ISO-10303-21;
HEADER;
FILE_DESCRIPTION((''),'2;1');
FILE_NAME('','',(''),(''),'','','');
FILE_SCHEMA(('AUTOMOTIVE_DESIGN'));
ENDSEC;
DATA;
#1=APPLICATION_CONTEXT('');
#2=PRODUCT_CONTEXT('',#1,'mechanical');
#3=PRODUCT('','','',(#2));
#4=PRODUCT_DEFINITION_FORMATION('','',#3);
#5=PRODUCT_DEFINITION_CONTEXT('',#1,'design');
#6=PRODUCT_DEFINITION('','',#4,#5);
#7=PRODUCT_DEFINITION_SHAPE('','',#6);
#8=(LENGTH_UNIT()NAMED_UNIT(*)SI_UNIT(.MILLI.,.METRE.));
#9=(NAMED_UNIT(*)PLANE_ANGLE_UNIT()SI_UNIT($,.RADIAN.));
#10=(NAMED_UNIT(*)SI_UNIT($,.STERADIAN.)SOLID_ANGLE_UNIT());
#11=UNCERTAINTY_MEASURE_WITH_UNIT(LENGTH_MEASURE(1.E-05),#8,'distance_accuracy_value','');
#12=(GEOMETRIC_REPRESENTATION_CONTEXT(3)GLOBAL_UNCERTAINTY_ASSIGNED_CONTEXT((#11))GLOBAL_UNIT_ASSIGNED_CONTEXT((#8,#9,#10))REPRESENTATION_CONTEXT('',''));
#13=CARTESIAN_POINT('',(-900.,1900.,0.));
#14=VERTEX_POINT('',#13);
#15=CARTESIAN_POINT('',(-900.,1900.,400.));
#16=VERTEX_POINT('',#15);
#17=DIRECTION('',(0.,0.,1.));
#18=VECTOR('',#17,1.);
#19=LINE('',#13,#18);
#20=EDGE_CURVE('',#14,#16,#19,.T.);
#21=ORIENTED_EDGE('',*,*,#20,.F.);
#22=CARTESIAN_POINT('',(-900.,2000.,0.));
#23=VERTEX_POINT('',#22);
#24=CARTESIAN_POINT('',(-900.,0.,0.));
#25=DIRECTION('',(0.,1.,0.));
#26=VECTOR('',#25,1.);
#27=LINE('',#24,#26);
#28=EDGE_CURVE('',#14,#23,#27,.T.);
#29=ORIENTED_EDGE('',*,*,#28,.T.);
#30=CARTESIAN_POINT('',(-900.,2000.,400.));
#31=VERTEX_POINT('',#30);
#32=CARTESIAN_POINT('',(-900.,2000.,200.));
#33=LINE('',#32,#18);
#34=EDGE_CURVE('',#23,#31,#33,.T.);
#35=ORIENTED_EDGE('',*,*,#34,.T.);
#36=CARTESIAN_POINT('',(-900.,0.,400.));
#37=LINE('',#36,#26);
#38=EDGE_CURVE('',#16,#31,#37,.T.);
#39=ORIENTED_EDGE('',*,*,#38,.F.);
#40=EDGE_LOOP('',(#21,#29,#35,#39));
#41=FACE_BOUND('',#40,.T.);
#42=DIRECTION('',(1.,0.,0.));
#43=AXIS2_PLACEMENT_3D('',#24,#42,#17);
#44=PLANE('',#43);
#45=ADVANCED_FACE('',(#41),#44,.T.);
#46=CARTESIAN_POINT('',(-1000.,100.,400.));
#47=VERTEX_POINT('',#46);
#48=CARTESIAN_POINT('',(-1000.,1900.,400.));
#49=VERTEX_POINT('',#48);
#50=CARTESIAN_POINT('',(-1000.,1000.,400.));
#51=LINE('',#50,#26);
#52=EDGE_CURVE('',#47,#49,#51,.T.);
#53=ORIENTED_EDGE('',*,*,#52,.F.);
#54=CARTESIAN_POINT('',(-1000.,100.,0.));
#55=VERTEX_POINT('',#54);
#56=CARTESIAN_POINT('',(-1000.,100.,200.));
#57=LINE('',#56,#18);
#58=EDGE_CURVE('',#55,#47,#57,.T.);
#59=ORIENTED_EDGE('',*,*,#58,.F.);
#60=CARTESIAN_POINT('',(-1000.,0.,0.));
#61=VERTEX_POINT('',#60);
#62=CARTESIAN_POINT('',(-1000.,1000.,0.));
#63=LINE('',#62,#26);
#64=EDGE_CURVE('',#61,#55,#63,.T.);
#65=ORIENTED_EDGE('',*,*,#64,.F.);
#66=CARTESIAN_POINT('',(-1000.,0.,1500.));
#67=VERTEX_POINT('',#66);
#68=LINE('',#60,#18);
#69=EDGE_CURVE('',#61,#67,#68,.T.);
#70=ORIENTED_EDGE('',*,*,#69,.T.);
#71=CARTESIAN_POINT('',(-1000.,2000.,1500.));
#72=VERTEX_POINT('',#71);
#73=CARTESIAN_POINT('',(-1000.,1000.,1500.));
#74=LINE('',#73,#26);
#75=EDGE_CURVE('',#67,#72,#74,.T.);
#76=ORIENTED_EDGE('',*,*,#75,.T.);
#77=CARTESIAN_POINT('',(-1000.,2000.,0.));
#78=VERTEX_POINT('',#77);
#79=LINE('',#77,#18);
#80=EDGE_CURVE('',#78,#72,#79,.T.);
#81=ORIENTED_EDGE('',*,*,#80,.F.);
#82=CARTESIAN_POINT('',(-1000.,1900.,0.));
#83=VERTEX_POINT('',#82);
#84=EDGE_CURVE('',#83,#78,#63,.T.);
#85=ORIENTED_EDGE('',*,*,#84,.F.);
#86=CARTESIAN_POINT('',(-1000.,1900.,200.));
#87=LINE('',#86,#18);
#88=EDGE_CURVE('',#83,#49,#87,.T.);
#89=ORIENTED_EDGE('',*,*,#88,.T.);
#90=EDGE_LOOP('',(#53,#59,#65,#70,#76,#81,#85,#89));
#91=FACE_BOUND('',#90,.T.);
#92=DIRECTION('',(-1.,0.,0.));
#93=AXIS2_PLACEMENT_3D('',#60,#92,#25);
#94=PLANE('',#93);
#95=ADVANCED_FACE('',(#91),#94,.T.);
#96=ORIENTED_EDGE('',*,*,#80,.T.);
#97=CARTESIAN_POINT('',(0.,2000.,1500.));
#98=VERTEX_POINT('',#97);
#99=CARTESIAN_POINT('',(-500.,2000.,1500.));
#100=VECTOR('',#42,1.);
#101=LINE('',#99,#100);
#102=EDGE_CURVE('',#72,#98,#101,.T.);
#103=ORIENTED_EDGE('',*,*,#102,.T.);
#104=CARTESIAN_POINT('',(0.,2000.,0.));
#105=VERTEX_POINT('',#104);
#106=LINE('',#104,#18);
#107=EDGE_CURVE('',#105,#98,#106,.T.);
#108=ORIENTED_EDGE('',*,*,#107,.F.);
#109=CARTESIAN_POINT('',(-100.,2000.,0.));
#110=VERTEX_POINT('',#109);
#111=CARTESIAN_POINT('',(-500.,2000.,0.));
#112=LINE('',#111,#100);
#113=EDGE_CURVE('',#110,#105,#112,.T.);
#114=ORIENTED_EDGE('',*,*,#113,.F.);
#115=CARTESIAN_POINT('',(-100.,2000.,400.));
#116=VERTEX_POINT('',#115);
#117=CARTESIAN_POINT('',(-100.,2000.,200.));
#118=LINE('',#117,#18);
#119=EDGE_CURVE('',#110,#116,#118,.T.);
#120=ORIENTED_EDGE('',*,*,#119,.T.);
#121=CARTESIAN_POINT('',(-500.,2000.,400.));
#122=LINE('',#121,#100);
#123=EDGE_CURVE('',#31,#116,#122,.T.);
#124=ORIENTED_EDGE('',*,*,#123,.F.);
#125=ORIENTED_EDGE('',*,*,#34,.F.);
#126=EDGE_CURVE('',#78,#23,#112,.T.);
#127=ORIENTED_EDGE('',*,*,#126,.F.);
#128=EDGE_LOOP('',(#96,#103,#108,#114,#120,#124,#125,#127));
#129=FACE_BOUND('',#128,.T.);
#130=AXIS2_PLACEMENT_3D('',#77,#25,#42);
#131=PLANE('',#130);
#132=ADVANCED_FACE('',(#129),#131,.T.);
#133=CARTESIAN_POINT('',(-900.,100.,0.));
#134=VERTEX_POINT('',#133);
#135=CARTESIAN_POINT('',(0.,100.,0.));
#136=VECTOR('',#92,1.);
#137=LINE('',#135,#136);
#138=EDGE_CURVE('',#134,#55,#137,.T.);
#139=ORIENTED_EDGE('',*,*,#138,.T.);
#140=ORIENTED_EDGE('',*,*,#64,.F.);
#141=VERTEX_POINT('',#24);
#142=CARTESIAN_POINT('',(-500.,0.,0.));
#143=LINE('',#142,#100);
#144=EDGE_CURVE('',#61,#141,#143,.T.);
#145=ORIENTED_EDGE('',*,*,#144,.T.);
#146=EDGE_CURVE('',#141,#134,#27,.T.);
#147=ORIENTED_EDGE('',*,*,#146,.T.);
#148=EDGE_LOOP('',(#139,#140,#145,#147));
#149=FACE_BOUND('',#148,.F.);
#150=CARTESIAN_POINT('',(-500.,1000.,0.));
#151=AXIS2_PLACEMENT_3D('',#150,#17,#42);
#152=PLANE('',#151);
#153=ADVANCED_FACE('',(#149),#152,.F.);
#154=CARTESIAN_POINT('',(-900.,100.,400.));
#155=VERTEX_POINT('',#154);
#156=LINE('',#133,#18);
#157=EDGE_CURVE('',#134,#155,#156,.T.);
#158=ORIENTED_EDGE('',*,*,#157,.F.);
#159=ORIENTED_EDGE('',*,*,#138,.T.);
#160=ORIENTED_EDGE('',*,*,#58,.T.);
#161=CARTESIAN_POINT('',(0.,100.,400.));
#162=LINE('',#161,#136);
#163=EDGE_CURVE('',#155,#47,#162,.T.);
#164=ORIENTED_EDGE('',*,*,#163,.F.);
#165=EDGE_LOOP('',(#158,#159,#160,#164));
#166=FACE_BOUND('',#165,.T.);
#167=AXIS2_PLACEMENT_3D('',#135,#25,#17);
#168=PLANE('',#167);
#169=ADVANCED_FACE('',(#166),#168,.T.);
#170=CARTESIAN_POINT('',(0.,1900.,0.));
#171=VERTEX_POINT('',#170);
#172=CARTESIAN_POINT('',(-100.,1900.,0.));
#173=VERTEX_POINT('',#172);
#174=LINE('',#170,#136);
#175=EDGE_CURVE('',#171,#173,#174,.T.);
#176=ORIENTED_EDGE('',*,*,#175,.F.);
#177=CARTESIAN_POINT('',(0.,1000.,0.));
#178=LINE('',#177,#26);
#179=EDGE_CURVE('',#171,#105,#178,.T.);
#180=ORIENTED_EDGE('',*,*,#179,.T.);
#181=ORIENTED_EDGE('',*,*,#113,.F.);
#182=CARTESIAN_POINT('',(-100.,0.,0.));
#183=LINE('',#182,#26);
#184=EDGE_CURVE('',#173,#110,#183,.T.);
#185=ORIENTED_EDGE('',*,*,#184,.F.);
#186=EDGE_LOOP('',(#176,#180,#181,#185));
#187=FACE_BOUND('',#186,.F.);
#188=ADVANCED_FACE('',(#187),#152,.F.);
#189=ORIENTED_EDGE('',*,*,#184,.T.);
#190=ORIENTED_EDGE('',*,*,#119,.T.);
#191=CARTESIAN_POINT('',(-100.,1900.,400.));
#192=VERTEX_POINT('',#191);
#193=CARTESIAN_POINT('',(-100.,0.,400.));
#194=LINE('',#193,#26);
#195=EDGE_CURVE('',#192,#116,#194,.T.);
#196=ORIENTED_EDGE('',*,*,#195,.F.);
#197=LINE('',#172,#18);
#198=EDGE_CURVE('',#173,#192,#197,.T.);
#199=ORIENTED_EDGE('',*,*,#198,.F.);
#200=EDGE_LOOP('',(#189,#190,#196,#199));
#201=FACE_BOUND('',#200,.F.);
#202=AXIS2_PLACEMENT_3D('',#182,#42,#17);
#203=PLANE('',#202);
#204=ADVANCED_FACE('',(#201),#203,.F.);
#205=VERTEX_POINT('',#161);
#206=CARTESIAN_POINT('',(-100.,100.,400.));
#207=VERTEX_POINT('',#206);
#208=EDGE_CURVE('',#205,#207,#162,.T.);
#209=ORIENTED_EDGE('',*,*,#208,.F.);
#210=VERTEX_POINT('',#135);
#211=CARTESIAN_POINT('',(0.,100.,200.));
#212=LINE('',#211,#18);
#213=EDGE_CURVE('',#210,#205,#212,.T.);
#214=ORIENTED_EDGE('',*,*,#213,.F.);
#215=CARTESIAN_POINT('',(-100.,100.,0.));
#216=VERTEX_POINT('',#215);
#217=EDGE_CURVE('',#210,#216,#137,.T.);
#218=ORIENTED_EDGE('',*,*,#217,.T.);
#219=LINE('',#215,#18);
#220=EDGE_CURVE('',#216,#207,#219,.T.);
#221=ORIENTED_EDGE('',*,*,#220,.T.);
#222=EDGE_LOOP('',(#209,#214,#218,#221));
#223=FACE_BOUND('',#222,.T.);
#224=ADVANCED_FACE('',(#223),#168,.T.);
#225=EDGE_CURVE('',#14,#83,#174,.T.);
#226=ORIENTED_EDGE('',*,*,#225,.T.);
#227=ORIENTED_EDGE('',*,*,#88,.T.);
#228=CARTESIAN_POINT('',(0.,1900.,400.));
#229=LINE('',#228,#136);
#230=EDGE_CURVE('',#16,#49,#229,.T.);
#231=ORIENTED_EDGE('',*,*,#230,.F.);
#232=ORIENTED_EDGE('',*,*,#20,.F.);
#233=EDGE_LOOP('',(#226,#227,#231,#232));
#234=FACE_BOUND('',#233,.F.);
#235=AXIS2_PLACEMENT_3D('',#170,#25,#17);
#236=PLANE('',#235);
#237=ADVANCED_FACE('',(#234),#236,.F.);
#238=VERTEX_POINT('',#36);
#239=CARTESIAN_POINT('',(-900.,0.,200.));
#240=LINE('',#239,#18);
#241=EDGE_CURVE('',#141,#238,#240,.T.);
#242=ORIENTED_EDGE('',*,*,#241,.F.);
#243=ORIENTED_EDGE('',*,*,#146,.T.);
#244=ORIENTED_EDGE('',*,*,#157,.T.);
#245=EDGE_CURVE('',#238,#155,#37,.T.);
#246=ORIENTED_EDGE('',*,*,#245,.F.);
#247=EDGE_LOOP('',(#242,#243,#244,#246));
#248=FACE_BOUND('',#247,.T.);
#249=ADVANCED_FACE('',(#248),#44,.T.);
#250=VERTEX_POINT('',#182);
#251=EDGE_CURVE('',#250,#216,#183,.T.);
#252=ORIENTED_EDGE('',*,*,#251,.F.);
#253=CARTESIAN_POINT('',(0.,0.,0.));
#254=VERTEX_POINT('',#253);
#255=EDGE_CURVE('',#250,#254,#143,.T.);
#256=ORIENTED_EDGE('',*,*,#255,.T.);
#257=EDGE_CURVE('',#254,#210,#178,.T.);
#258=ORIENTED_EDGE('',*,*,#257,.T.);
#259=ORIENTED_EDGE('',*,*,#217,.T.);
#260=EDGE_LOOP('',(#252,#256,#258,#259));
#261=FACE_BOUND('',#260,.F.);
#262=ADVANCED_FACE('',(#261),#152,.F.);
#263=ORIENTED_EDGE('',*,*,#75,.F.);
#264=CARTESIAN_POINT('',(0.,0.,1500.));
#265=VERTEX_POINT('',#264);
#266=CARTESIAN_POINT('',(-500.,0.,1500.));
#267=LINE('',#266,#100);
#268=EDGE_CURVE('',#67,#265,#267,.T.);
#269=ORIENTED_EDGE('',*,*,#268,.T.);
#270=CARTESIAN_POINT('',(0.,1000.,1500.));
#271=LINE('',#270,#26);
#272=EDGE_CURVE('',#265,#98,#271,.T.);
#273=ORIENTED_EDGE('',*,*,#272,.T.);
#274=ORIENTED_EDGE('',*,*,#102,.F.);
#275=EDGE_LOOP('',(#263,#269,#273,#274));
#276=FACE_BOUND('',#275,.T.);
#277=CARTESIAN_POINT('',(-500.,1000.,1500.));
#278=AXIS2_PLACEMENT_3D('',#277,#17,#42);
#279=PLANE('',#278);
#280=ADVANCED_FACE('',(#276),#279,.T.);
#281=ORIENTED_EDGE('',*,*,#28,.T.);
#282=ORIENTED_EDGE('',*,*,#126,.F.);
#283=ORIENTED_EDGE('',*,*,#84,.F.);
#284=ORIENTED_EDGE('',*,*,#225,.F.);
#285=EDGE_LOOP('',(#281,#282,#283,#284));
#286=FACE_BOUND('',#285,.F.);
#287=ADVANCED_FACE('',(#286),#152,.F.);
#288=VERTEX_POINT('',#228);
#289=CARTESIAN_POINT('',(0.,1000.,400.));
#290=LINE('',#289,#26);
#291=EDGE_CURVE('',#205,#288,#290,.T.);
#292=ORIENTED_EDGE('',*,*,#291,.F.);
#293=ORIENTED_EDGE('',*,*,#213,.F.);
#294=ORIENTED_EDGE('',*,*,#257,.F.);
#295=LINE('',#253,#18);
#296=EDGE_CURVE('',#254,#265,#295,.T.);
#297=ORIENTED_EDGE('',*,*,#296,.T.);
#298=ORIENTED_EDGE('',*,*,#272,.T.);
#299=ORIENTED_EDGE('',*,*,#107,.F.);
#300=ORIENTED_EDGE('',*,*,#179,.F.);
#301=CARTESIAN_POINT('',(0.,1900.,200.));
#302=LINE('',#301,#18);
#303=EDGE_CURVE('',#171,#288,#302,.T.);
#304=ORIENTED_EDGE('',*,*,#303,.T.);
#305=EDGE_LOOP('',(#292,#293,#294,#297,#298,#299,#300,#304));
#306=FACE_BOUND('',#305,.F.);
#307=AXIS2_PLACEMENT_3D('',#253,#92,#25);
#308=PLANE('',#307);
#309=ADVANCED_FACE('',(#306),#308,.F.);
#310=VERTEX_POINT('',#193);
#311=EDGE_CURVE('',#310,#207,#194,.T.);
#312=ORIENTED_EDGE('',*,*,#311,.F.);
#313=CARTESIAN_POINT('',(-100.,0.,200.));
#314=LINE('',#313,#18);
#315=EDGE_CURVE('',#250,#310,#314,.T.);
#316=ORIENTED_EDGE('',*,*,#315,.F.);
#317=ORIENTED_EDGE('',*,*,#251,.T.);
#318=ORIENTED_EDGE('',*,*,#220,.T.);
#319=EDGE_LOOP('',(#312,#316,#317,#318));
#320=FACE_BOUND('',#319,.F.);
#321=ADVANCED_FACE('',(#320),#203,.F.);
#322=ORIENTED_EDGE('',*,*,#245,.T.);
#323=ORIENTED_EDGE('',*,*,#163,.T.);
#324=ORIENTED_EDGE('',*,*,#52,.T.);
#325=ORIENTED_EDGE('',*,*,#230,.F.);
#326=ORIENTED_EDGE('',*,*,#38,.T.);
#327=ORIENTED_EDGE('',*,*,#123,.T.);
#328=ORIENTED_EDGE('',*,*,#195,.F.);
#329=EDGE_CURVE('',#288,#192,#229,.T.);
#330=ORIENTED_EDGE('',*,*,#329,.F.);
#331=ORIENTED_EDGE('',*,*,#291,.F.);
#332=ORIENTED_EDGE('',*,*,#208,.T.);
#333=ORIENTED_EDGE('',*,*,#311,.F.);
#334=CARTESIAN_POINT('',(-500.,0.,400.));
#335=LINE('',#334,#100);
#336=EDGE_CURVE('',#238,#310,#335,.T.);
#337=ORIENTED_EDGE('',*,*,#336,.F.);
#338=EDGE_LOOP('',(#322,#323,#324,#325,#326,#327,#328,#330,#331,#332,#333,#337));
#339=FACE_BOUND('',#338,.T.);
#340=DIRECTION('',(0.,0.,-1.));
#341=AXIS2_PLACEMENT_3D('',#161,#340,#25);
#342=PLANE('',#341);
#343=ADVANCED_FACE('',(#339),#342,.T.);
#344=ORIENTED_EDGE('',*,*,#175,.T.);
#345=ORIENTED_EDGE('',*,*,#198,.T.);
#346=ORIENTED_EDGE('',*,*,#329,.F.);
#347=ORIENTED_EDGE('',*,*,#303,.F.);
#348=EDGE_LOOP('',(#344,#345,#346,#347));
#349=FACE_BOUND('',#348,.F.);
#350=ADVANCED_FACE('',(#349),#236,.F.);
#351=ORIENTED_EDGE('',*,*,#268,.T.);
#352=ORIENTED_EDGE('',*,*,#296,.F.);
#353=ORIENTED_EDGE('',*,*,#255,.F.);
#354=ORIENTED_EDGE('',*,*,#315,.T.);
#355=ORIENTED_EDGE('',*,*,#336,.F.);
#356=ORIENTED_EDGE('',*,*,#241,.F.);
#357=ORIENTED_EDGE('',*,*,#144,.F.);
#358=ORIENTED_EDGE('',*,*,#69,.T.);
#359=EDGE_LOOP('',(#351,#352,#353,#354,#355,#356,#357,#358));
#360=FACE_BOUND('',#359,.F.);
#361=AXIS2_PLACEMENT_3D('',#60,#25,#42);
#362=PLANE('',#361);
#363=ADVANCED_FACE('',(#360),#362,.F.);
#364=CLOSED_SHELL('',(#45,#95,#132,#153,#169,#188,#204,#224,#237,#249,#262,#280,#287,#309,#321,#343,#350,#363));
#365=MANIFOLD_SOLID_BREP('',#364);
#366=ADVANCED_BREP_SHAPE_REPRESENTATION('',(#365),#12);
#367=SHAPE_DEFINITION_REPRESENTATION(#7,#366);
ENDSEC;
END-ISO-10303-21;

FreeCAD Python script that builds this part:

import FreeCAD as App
import Part
import Sketcher

V = App.Vector


def add_polygon(sketch, points):
    """Adds a closed chain of lines whose ends are joined by coincident constraints."""
    first, n = sketch.GeometryCount, len(points)
    for a, b in zip(points, points[1:] + points[:1]):
        sketch.addGeometry(Part.LineSegment(App.Vector(*a, 0), App.Vector(*b, 0)), False)
    for i in range(n):
        sketch.addConstraint(Sketcher.Constraint("Coincident", first + i, 2, first + (i + 1) % n, 1))

doc = App.newDocument("Part")
body = doc.addObject("PartDesign::Body", "Body")

sketch1 = body.newObject("Sketcher::SketchObject", "Sketch")
sketch1.AttachmentSupport = (doc.getObject("XY_Plane"), [""])
sketch1.MapMode = "FlatFace"
add_polygon(sketch1, [(-1000, 2000), (-1000, 0), (0, 0), (0, 2000)])
sketch1.addConstraint([
    Sketcher.Constraint("Vertical", 0),
    Sketcher.Constraint("Horizontal", 1),
    Sketcher.Constraint("Vertical", 2),
    Sketcher.Constraint("Horizontal", 3),
    Sketcher.Constraint("Coincident", 1, 2, -1, 1),
    Sketcher.Constraint("DistanceX", 1, 1, 1, 2, 1000.0),
    Sketcher.Constraint("DistanceY", 0, 2, 0, 1, 2000.0),
])
pad1 = body.newObject("PartDesign::Pad", "Pad")
pad1.Profile = sketch1
pad1.Length = 1500

sketch2 = body.newObject("Sketcher::SketchObject", "Sketch001")
sketch2.AttachmentSupport = (doc.getObject("XZ_Plane"), [""])
sketch2.MapMode = "FlatFace"
add_polygon(sketch2, [(-900, 400), (-900, 0), (-100, 0), (-100, 400)])
sketch2.addConstraint([
    Sketcher.Constraint("Vertical", 0),
    Sketcher.Constraint("Horizontal", 1),
    Sketcher.Constraint("Vertical", 2),
    Sketcher.Constraint("Horizontal", 3),
    Sketcher.Constraint("PointOnObject", 0, 2, -1),
    Sketcher.Constraint("DistanceX", 1, 1, 1, 2, 800.0),
    Sketcher.Constraint("DistanceY", 0, 2, 0, 1, 400.0),
    Sketcher.Constraint("DistanceX", 0, 2, -1, 1, 900.0),
])
pocket1 = body.newObject("PartDesign::Pocket", "Pocket")
pocket1.Profile = sketch2
pocket1.Length = 2000

sketch3 = body.newObject("Sketcher::SketchObject", "Sketch002")
sketch3.AttachmentSupport = (doc.getObject("YZ_Plane"), [""])
sketch3.MapMode = "FlatFace"
add_polygon(sketch3, [(100, 400), (100, 0), (1900, 0), (1900, 400)])
sketch3.addConstraint([
    Sketcher.Constraint("Vertical", 0),
    Sketcher.Constraint("Horizontal", 1),
    Sketcher.Constraint("Vertical", 2),
    Sketcher.Constraint("Horizontal", 3),
    Sketcher.Constraint("PointOnObject", 0, 2, -1),
    Sketcher.Constraint("DistanceX", 1, 1, 1, 2, 1800.0),
    Sketcher.Constraint("DistanceY", 0, 2, 0, 1, 400.0),
    Sketcher.Constraint("DistanceX", -1, 1, 0, 2, 100.0),
])
pocket2 = body.newObject("PartDesign::Pocket", "Pocket001")
pocket2.Profile = sketch3
pocket2.Length = 1000

doc.recompute()
